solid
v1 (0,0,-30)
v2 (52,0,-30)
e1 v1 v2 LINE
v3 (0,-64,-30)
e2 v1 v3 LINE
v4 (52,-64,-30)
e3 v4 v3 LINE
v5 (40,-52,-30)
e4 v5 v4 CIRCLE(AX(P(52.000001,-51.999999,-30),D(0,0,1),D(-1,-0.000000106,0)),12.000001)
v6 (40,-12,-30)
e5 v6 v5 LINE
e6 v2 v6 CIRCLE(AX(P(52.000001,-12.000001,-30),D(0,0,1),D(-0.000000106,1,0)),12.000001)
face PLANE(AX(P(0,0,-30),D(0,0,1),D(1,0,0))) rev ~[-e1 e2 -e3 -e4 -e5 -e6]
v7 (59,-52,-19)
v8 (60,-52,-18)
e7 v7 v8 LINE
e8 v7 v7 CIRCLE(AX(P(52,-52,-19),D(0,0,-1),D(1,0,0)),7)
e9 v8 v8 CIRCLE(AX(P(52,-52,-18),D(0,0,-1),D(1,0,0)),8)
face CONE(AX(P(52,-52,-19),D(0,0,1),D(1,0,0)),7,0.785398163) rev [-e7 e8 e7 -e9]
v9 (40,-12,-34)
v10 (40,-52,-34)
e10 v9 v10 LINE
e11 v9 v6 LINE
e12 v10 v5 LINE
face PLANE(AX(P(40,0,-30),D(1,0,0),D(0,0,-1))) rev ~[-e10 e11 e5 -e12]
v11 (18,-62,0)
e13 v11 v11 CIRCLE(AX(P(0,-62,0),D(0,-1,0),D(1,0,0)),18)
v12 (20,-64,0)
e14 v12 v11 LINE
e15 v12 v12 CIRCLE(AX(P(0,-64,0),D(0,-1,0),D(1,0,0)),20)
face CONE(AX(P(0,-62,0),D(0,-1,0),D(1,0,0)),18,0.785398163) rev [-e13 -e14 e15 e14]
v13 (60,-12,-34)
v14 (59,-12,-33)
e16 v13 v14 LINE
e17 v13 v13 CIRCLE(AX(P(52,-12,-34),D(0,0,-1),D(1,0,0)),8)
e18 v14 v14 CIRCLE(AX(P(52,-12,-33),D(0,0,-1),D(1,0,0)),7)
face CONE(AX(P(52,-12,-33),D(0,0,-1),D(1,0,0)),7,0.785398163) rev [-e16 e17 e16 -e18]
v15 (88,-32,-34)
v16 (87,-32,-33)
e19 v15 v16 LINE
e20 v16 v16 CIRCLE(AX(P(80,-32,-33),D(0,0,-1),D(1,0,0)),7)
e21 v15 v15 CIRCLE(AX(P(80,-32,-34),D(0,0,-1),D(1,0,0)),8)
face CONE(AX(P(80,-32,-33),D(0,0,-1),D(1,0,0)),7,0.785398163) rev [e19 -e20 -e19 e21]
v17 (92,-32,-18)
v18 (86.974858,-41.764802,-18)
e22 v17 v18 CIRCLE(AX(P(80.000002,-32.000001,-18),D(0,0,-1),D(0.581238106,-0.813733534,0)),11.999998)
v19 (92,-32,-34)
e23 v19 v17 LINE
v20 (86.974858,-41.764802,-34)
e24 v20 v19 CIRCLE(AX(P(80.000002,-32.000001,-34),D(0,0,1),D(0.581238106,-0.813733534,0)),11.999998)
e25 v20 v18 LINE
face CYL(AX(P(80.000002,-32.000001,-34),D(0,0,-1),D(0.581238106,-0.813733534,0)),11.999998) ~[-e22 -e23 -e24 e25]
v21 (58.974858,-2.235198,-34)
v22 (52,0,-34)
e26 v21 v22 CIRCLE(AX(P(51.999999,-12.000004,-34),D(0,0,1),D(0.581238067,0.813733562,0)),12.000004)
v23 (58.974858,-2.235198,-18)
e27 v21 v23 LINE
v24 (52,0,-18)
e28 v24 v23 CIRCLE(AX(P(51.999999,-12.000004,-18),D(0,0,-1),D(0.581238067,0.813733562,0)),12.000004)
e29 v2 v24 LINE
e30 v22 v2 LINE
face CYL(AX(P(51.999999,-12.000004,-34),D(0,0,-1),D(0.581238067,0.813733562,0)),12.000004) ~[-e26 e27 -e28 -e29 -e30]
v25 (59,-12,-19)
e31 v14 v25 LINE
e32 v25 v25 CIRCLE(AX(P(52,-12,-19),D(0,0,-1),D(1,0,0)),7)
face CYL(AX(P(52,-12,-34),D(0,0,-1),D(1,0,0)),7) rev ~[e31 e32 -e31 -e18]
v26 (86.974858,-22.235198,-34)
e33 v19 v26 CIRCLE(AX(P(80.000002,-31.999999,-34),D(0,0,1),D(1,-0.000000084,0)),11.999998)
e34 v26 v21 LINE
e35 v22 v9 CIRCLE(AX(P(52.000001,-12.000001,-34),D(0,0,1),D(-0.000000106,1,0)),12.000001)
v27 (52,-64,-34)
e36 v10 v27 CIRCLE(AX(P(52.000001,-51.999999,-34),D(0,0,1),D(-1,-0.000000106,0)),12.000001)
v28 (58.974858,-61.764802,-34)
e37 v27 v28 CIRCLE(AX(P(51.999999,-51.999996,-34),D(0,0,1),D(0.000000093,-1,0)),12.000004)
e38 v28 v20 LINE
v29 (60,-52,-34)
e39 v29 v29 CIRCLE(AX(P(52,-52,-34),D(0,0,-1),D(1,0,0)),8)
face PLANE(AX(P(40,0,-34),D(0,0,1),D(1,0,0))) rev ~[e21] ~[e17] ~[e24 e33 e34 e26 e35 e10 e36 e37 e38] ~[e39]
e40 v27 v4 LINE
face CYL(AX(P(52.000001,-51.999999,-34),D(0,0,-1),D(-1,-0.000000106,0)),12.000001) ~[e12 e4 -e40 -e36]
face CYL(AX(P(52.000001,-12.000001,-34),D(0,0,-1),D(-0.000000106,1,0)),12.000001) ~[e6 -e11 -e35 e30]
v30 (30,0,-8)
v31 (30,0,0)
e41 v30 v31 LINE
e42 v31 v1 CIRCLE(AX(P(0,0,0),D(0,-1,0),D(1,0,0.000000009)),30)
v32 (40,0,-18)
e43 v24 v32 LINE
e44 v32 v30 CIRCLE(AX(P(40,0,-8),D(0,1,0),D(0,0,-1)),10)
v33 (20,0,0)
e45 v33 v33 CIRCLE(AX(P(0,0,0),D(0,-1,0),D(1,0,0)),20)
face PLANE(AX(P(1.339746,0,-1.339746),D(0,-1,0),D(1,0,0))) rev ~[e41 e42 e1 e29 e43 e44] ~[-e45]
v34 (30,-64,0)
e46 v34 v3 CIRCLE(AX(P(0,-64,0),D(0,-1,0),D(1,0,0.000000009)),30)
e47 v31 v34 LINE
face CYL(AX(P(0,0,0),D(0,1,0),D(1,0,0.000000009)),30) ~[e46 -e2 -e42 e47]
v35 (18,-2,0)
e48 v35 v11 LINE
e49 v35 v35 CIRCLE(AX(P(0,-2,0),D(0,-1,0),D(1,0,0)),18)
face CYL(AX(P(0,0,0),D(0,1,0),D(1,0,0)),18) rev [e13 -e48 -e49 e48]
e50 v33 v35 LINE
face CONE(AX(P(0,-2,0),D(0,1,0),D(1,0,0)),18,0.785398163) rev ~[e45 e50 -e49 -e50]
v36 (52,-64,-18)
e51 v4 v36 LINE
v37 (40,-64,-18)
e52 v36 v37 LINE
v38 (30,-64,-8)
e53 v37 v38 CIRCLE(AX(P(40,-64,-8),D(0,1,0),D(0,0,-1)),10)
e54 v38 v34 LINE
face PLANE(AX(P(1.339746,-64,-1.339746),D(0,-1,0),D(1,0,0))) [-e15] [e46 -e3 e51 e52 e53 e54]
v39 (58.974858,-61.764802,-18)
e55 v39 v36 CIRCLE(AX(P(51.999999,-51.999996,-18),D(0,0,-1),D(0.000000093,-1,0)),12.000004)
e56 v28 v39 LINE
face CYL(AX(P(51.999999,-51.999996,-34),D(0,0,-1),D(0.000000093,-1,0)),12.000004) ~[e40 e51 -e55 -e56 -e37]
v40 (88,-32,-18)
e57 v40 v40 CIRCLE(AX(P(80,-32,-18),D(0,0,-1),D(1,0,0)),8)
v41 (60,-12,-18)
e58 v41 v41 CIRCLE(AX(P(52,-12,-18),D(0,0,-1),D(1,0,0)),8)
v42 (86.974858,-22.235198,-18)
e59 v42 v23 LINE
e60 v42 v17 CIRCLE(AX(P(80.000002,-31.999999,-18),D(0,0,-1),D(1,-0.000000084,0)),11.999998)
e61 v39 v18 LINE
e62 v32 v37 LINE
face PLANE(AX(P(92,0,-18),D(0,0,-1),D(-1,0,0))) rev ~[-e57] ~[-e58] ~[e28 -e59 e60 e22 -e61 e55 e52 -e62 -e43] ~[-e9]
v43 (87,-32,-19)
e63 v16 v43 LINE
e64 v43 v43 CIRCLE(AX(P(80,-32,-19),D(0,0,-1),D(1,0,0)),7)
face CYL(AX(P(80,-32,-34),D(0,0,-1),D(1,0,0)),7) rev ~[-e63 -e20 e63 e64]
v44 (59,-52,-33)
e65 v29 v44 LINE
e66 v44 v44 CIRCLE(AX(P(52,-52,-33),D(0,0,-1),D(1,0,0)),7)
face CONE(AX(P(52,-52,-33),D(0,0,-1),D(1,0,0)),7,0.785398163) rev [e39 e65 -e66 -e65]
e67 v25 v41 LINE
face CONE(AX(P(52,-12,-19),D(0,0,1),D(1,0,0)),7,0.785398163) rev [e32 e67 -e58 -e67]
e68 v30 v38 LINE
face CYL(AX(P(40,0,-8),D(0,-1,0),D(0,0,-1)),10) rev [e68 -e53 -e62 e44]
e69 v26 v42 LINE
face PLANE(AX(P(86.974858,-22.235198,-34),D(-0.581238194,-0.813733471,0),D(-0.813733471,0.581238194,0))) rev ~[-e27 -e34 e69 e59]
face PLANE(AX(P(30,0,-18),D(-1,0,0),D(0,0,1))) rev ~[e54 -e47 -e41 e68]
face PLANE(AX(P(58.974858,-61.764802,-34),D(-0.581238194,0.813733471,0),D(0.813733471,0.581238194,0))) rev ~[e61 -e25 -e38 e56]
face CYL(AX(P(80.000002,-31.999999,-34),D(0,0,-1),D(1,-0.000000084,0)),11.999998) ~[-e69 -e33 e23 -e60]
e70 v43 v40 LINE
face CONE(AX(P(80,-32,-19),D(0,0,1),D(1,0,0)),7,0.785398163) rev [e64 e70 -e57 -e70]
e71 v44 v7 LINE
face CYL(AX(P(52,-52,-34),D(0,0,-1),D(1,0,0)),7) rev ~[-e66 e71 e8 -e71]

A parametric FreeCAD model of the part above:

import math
import FreeCAD as App
import Part
import Sketcher

V = App.Vector


def edges_at(feature, points):
    """Names of the edges that pass closest to the given points."""
    edges = feature.Shape.Edges
    near = lambda p: min(range(len(edges)), key=lambda i: edges[i].distToShape(Part.Vertex(*p))[0])
    return sorted({f"Edge{near(p) + 1}" for p in points})

doc = App.newDocument("Part")
body = doc.addObject("PartDesign::Body", "Body")

# Sketch on XZ plane
sketch1 = doc.addObject("Sketcher::SketchObject", "Sketch")
body.addObject(sketch1)
sketch1.AttachmentSupport = (doc.XZ_Plane, [""])
sketch1.MapMode = "FlatFace"
sketch1.addGeometry([
    Part.ArcOfCircle(Part.Circle(V(0, 0, 0), V(0, 0, 1), 30), math.radians(0), math.radians(270)),  # 0
    Part.LineSegment(V(0, -30, 0), V(40, -30, 0)),  # 1
    Part.LineSegment(V(40, -30, 0), V(40, -34, 0)),  # 2
    Part.LineSegment(V(40, -34, 0), V(92, -34, 0)),  # 3
    Part.LineSegment(V(92, -34, 0), V(92, -18, 0)),  # 4
    Part.LineSegment(V(92, -18, 0), V(30, -18, 0)),  # 5
    Part.LineSegment(V(30, -18, 0), V(30, 0, 0)),  # 6
    Part.Circle(V(0, 0, 0), V(0, 0, 1), 18),  # 7
], False)
sketch1.addConstraint([
    Sketcher.Constraint("Tangent", 0, 2, 1, 1),
    Sketcher.Constraint("Coincident", 1, 2, 2, 1),
    Sketcher.Constraint("Coincident", 2, 2, 3, 1),
    Sketcher.Constraint("Coincident", 3, 2, 4, 1),
    Sketcher.Constraint("Coincident", 4, 2, 5, 1),
    Sketcher.Constraint("Coincident", 5, 2, 6, 1),
    Sketcher.Constraint("Tangent", 6, 2, 0, 1),
    Sketcher.Constraint("Horizontal", 1),
    Sketcher.Constraint("Vertical", 2),
    Sketcher.Constraint("Horizontal", 3),
    Sketcher.Constraint("Vertical", 4),
    Sketcher.Constraint("Horizontal", 5),
    Sketcher.Constraint("Vertical", 6),
    Sketcher.Constraint("Coincident", 0, 3, -1, 1),
    Sketcher.Constraint("Coincident", 7, 3, -1, 1),
    Sketcher.Constraint("Diameter", 7, 36.0),
    Sketcher.Constraint("Radius", 0, 30.0),
    Sketcher.Constraint("DistanceX", 1, 1, 1, 2, 40.0),
    Sketcher.Constraint("DistanceX", 3, 1, 3, 2, 52.0),
    Sketcher.Constraint("DistanceY", 2, 2, 2, 1, 4.0),
    Sketcher.Constraint("DistanceY", 4, 1, 4, 2, 16.0),
])
pad1 = doc.addObject("PartDesign::Pad", "Pad")
body.addObject(pad1)
pad1.Profile = sketch1
pad1.Length = 64

# Sketch on XY plane
sketch2 = doc.addObject("Sketcher::SketchObject", "Sketch001")
body.addObject(sketch2)
sketch2.AttachmentSupport = (doc.XY_Plane, [""])
sketch2.MapMode = "FlatFace"
sketch2.AttachmentOffset = App.Placement(V(0, 0, -34), App.Rotation())
sketch2.addGeometry([
    Part.ArcOfCircle(Part.Circle(V(51.999999, -51.999996, 0), V(0, 0, 1), 12.000004), math.radians(-89.999995), math.radians(-54.462331)),  # 0
    Part.LineSegment(V(58.974858, -61.764802, 0), V(86.974858, -41.764802, 0)),  # 1
    Part.ArcOfCircle(Part.Circle(V(80.000002, -32.000001, 0), V(0, 0, 1), 11.999998), math.radians(-54.462328), math.radians(0.000005)),  # 2
    Part.LineSegment(V(92, -32, 0), V(92, -64, 0)),  # 3
    Part.LineSegment(V(92, -64, 0), V(52, -64, 0)),  # 4
    Part.LineSegment(V(92, 0, 0), V(92, -32, 0)),  # 5
    Part.ArcOfCircle(Part.Circle(V(80.000002, -31.999999, 0), V(0, 0, 1), 11.999998), math.radians(-0.000005), math.radians(54.462328)),  # 6
    Part.LineSegment(V(86.974858, -22.235198, 0), V(58.974858, -2.235198, 0)),  # 7
    Part.ArcOfCircle(Part.Circle(V(51.999999, -12.000004, 0), V(0, 0, 1), 12.000004), math.radians(54.462331), math.radians(89.999995)),  # 8
    Part.LineSegment(V(52, 0, 0), V(92, 0, 0)),  # 9
    Part.Circle(V(52, -52, 0), V(0, 0, 1), 7),  # 10
    Part.Circle(V(52, -12, 0), V(0, 0, 1), 7),  # 11
    Part.Circle(V(80, -32, 0), V(0, 0, 1), 7),  # 12
], False)
sketch2.addConstraint([
    Sketcher.Constraint("Tangent", 0, 2, 1, 1),
    Sketcher.Constraint("Tangent", 1, 2, 2, 1),
    Sketcher.Constraint("Tangent", 2, 2, 3, 1),
    Sketcher.Constraint("Coincident", 3, 2, 4, 1),
    Sketcher.Constraint("Tangent", 4, 2, 0, 1),
    Sketcher.Constraint("Tangent", 5, 2, 6, 1),
    Sketcher.Constraint("Tangent", 6, 2, 7, 1),
    Sketcher.Constraint("Tangent", 7, 2, 8, 1),
    Sketcher.Constraint("Tangent", 8, 2, 9, 1),
    Sketcher.Constraint("Coincident", 9, 2, 5, 1),
    Sketcher.Constraint("Vertical", 3),
    Sketcher.Constraint("Horizontal", 4),
    Sketcher.Constraint("Vertical", 5),
    Sketcher.Constraint("Horizontal", 9),
    Sketcher.Constraint("Coincident", 6, 3, 2, 3),
    Sketcher.Constraint("Coincident", 10, 3, 0, 3),
    Sketcher.Constraint("Coincident", 11, 3, 8, 3),
    Sketcher.Constraint("Coincident", 12, 3, 2, 3),
    Sketcher.Constraint("Equal", 2, 6),
    Sketcher.Constraint("Equal", 0, 8),
    Sketcher.Constraint("Equal", 10, 11),
    Sketcher.Constraint("Equal", 11, 12),
    Sketcher.Constraint("PointOnObject", 8, 2, -1),
    Sketcher.Constraint("Vertical", 0, 3, 8, 3),
    Sketcher.Constraint("Vertical", 1, 2, 6, 2),
    Sketcher.Constraint("Diameter", 10, 14.0),
    Sketcher.Constraint("Radius", 2, 11.999998),
    Sketcher.Constraint("DistanceX", 4, 2, 4, 1, 40.0),
    Sketcher.Constraint("DistanceY", 3, 2, 3, 1, 32.0),
    Sketcher.Constraint("DistanceX", -1, 1, 0, 3, 51.999999),
    Sketcher.Constraint("DistanceY", 10, 3, -1, 1, 52.0),
])
pocket1 = doc.addObject("PartDesign::Pocket", "Pocket")
body.addObject(pocket1)
pocket1.Profile = sketch2
pocket1.Length = 25
pocket1.Reversed = True

# Sketch on XY plane
sketch3 = doc.addObject("Sketcher::SketchObject", "Sketch002")
body.addObject(sketch3)
sketch3.AttachmentSupport = (doc.XY_Plane, [""])
sketch3.MapMode = "FlatFace"
sketch3.AttachmentOffset = App.Placement(V(0, 0, -34), App.Rotation())
sketch3.addGeometry([
    Part.ArcOfCircle(Part.Circle(V(52.000001, -51.999999, 0), V(0, 0, 1), 12.000001), math.radians(-179.999994), math.radians(-90.000006)),  # 0
    Part.LineSegment(V(52, -64, 0), V(40, -64, 0)),  # 1
    Part.LineSegment(V(40, -64, 0), V(40, -52, 0)),  # 2
    Part.ArcOfCircle(Part.Circle(V(52.000001, -12.000001, 0), V(0, 0, 1), 12.000001), math.radians(90.000006), math.radians(179.999994)),  # 3
    Part.LineSegment(V(40, -12, 0), V(40, 0, 0)),  # 4
    Part.LineSegment(V(40, 0, 0), V(52, 0, 0)),  # 5
], False)
sketch3.addConstraint([
    Sketcher.Constraint("Tangent", 0, 2, 1, 1),
    Sketcher.Constraint("Coincident", 1, 2, 2, 1),
    Sketcher.Constraint("Tangent", 2, 2, 0, 1),
    Sketcher.Constraint("Tangent", 3, 2, 4, 1),
    Sketcher.Constraint("Coincident", 4, 2, 5, 1),
    Sketcher.Constraint("Tangent", 5, 2, 3, 1),
    Sketcher.Constraint("Horizontal", 1),
    Sketcher.Constraint("Vertical", 2),
    Sketcher.Constraint("Vertical", 4),
    Sketcher.Constraint("Horizontal", 5),
    Sketcher.Constraint("Equal", 0, 3),
    Sketcher.Constraint("PointOnObject", 4, 2, -1),
    Sketcher.Constraint("Vertical", 0, 3, 3, 3),
    Sketcher.Constraint("Radius", 0, 12.000001),
    Sketcher.Constraint("DistanceX", -1, 1, 0, 3, 52.000001),
    Sketcher.Constraint("DistanceY", 0, 3, -1, 1, 51.999999),
])
pocket2 = doc.addObject("PartDesign::Pocket", "Pocket001")
body.addObject(pocket2)
pocket2.Profile = sketch3
pocket2.Length = 4
pocket2.Reversed = True
doc.recompute()

chamfer = doc.addObject("PartDesign::Chamfer", "Chamfer")
body.addObject(chamfer)
chamfer.Base = (pocket2, edges_at(pocket2, [
    (45, -12, -18),
    (73, -32, -18),
    (45, -52, -18),
    (45, -52, -34),
    (73, -32, -34),
    (45, -12, -34),
]))
chamfer.ChamferType = "Two distances"
chamfer.Size = 1
chamfer.Size2 = 1
doc.recompute()

chamfer2 = doc.addObject("PartDesign::Chamfer", "Chamfer001")
body.addObject(chamfer2)
chamfer2.Base = (chamfer, edges_at(chamfer, [(-18, 0, 0), (-18, -64, 0)]))
chamfer2.ChamferType = "Two distances"
chamfer2.Size = 2
chamfer2.Size2 = 2
doc.recompute()

fillet = doc.addObject("PartDesign::Fillet", "Fillet")
body.addObject(fillet)
fillet.Base = (chamfer2, edges_at(chamfer2, [(30, -32, -18)]))
fillet.Radius = 10

doc.recompute()
